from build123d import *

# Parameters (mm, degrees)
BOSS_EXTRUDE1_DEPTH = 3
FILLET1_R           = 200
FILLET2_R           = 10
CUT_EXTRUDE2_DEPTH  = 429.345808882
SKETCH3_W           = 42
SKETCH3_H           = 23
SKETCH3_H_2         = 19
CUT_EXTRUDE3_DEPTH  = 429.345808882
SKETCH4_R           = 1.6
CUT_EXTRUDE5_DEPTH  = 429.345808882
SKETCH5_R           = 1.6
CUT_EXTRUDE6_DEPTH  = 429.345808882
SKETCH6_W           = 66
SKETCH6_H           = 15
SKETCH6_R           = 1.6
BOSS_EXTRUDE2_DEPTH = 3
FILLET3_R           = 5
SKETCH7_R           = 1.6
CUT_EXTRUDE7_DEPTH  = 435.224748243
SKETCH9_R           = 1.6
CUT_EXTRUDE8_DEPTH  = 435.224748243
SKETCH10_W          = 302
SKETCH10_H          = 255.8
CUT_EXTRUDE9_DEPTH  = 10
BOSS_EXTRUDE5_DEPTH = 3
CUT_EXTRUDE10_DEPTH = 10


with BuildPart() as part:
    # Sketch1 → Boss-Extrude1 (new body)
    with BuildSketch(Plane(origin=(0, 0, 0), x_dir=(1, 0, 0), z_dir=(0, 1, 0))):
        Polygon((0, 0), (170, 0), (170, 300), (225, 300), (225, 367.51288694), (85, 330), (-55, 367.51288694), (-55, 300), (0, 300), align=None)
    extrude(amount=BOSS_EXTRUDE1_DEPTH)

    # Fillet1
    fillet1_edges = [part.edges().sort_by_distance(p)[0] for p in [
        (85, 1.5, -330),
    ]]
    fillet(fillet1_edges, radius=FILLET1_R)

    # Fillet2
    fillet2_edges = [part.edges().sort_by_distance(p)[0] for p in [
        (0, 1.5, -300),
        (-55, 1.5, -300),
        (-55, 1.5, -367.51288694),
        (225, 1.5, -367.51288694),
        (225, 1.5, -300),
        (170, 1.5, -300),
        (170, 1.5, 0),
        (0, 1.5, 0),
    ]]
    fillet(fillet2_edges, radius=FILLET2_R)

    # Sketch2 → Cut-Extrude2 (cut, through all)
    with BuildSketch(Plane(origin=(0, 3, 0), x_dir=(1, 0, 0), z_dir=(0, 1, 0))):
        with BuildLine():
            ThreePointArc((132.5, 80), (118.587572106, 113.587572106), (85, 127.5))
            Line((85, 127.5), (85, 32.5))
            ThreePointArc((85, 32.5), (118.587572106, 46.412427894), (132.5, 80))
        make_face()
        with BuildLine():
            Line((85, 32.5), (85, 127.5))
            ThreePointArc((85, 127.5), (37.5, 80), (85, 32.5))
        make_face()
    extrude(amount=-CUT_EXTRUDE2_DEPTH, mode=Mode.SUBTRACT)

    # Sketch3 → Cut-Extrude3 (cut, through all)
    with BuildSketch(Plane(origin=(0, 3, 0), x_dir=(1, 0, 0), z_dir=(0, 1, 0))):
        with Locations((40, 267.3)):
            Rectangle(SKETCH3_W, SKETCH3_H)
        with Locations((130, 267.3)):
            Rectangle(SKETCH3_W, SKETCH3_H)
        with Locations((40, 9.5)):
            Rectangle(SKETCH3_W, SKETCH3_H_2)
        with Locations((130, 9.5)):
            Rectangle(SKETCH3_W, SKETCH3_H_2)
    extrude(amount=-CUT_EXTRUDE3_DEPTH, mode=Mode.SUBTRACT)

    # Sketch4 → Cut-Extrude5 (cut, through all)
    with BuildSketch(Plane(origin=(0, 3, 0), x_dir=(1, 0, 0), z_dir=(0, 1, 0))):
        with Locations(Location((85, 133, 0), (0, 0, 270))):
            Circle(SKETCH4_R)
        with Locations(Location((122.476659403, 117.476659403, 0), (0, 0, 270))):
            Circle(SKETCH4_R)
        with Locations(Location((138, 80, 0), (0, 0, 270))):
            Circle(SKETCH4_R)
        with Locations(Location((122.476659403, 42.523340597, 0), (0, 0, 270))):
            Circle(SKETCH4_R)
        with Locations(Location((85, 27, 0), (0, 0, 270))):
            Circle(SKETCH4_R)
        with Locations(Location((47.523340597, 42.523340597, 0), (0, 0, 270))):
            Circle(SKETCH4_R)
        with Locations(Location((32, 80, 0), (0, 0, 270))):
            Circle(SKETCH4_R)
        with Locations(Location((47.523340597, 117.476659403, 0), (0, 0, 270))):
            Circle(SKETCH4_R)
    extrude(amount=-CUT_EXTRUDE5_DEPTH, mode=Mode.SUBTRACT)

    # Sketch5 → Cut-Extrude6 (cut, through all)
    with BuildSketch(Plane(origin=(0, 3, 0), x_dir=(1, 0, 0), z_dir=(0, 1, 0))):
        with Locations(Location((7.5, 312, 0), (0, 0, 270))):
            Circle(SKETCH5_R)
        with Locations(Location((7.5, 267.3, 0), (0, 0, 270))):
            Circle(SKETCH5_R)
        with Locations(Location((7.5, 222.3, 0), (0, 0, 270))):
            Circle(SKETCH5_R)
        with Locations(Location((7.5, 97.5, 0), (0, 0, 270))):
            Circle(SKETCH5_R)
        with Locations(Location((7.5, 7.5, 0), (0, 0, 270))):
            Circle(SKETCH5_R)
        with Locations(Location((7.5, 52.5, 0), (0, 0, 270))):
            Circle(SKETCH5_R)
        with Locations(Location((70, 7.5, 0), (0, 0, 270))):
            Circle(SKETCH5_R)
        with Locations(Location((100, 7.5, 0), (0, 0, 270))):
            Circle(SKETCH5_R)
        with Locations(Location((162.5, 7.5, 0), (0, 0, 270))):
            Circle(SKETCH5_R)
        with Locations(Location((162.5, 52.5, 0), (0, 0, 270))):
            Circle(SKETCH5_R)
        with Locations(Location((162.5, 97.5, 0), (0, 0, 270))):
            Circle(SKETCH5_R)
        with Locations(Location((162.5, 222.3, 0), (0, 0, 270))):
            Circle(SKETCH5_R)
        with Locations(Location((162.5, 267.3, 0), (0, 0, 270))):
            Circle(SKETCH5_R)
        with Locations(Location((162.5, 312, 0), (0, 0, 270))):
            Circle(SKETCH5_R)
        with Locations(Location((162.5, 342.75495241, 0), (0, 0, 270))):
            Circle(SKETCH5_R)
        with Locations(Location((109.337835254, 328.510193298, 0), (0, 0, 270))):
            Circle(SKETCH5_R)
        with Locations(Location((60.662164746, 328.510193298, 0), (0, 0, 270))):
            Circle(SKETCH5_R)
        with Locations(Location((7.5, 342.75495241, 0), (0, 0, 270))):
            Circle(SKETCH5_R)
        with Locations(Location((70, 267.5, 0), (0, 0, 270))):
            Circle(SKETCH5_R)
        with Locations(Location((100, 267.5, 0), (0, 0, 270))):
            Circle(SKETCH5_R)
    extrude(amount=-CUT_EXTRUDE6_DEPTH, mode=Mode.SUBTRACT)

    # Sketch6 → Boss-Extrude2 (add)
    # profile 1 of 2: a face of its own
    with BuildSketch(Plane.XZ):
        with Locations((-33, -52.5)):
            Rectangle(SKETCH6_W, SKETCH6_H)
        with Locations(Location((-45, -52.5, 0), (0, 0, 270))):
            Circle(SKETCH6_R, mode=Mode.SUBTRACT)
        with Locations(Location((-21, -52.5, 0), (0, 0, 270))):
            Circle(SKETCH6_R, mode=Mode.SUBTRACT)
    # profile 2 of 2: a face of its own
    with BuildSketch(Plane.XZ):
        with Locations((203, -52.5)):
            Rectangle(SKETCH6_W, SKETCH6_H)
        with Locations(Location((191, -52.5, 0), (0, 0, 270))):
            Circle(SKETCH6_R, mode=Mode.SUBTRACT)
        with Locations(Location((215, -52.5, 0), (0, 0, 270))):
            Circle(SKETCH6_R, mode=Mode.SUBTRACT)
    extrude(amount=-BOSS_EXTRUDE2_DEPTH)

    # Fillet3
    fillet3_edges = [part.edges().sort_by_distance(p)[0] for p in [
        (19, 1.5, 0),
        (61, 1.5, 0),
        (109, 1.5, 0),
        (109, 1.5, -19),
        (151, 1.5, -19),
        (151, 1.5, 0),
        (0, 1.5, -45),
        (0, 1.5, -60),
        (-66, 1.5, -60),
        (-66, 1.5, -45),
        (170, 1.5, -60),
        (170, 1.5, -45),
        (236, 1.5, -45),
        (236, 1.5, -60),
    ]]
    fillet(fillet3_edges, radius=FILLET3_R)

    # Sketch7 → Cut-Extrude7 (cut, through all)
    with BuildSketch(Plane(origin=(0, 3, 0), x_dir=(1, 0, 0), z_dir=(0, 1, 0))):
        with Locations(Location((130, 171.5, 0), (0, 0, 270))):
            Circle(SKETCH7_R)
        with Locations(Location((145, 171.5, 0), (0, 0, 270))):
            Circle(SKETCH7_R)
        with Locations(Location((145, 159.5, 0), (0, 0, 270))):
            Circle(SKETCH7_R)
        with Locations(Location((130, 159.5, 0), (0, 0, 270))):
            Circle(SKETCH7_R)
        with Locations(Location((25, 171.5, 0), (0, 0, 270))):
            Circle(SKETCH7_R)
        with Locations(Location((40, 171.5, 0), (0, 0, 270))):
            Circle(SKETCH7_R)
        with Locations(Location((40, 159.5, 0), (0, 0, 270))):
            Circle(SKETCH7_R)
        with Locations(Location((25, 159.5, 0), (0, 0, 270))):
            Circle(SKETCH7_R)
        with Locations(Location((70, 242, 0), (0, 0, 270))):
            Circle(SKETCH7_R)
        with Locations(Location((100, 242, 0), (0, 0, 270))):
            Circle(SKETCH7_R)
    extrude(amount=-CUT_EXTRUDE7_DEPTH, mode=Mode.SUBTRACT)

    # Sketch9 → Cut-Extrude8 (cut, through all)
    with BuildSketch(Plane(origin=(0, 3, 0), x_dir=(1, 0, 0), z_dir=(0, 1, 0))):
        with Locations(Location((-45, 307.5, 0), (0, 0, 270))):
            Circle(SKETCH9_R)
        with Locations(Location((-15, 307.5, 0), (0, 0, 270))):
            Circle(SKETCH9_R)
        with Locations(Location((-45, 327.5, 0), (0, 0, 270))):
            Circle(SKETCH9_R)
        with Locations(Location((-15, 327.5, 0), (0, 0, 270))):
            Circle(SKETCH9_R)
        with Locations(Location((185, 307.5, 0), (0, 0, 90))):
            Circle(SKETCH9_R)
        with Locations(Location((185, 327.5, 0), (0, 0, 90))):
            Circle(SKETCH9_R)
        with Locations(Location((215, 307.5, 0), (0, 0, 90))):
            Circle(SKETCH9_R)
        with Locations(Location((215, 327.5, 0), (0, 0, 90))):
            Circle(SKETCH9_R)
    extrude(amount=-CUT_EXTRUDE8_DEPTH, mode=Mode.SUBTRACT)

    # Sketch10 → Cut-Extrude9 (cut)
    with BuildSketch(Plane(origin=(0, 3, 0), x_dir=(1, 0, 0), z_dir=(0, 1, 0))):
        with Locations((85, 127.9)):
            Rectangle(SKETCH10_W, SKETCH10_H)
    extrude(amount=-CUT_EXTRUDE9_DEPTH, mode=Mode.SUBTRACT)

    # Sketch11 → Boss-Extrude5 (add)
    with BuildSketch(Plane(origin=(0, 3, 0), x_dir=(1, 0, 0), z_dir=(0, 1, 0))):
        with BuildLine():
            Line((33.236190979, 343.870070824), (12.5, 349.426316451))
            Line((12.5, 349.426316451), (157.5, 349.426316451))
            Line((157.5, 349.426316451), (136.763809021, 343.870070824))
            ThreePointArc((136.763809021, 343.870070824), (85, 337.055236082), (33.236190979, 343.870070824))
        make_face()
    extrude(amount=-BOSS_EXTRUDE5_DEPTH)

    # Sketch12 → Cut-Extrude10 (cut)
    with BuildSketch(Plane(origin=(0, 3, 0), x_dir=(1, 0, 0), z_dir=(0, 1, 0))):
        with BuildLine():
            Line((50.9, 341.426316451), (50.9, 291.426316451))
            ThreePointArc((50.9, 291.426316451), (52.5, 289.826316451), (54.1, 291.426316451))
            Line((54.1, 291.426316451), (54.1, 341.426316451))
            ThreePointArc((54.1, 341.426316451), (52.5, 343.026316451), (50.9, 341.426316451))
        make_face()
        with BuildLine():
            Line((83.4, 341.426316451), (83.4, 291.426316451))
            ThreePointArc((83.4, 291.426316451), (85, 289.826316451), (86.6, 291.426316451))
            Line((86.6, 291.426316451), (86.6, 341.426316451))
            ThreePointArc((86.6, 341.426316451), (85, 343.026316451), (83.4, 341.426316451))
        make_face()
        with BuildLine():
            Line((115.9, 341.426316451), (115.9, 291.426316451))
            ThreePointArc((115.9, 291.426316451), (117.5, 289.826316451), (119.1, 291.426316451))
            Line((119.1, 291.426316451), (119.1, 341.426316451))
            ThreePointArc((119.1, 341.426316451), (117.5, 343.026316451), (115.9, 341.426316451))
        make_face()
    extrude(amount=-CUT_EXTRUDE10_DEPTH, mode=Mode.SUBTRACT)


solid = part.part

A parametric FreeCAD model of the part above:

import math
import FreeCAD as App
import Part
import Sketcher
Q = App.Units.Quantity


def edges_at(feature, points):
    """Names of the edges that pass closest to the given points."""
    edges = feature.Shape.Edges
    near = lambda p: min(range(len(edges)), key=lambda i: edges[i].distToShape(Part.Vertex(*p))[0])
    return sorted({f"Edge{near(p) + 1}" for p in points})


def add_polygon(sketch, points):
    """Adds a closed chain of lines whose ends are joined by coincident constraints."""
    first, n = sketch.GeometryCount, len(points)
    for a, b in zip(points, points[1:] + points[:1]):
        sketch.addGeometry(Part.LineSegment(App.Vector(*a, 0), App.Vector(*b, 0)), False)
    for i in range(n):
        sketch.addConstraint(Sketcher.Constraint("Coincident", first + i, 2, first + (i + 1) % n, 1))

doc = App.newDocument("Part")
body = doc.addObject("PartDesign::Body", "Body")

sketch1 = doc.addObject("Sketcher::SketchObject", "Sketch")
body.addObject(sketch1)
sketch1.AttachmentSupport = (doc.XZ_Plane, [""])
sketch1.MapMode = "FlatFace"
add_polygon(sketch1, [(0, 0), (170, 0), (170, -300), (225, -300), (225, -368), (85, -330), (-55, -368), (-55, -300), (0, -300)])
sketch1.addConstraint([
    Sketcher.Constraint("Horizontal", 0),
    Sketcher.Constraint("Vertical", 1),
    Sketcher.Constraint("Horizontal", 2),
    Sketcher.Constraint("Vertical", 3),
    Sketcher.Constraint("Vertical", 6),
    Sketcher.Constraint("Horizontal", 7),
    Sketcher.Constraint("Vertical", 8),
    Sketcher.Constraint("Coincident", 8, 2, -1, 1),
    Sketcher.Constraint("Horizontal", 3, 2, 5, 2),
    Sketcher.Constraint("Horizontal", 2, 2, 6, 2),
    Sketcher.Constraint("Equal", 2, 7),
    Sketcher.Constraint("Equal", 4, 5),
    Sketcher.Constraint("DistanceX", 0, 1, 0, 2, 170.0),
    Sketcher.Constraint("DistanceX", 2, 1, 2, 2, 55.0),
    Sketcher.Constraint("DistanceY", 1, 2, 1, 1, 300.0),
    Sketcher.Constraint("Angle", 4, Q("165 deg")),
    Sketcher.Constraint("DistanceY", 4, 2, -1, 1, 330.0),
])
pad1 = doc.addObject("PartDesign::Pad", "Pad")
body.addObject(pad1)
pad1.Profile = sketch1
pad1.Length = 3
pad1.Reversed = True
doc.recompute()

fillet = doc.addObject("PartDesign::Fillet", "Fillet")
body.addObject(fillet)
fillet.Base = (pad1, edges_at(pad1, [(85, 1.5, -330)]))
fillet.Radius = 200
doc.recompute()

fillet2 = doc.addObject("PartDesign::Fillet", "Fillet001")
body.addObject(fillet2)
fillet2.Base = (fillet, edges_at(fillet, [
    (0, 1.5, -300),
    (-55, 1.5, -300),
    (-55, 1.5, -367.513),
    (225, 1.5, -367.513),
    (225, 1.5, -300),
    (170, 1.5, -300),
    (170, 1.5, 0),
    (0, 1.5, 0),
]))
fillet2.Radius = 10

sketch2 = doc.addObject("Sketcher::SketchObject", "Sketch001")
body.addObject(sketch2)
sketch2.AttachmentSupport = (doc.XZ_Plane, [""])
sketch2.MapMode = "FlatFace"
sketch2.AttachmentOffset = App.Placement(App.Vector(0, 0, -3), App.Rotation())
sketch2.addGeometry([
    Part.ArcOfCircle(Part.Circle(App.Vector(85, -80, 0), App.Vector(0, 0, 1), 48), math.radians(-90), math.radians(0)),
    Part.ArcOfCircle(Part.Circle(App.Vector(85, -80, 0), App.Vector(0, 0, 1), 48), math.radians(90), math.radians(270)),
    Part.ArcOfCircle(Part.Circle(App.Vector(85, -80, 0), App.Vector(0, 0, 1), 48), math.radians(0), math.radians(90)),
], False)
sketch2.addConstraint([
    Sketcher.Constraint("Tangent", 0, 1, 1, 2),
    Sketcher.Constraint("Tangent", 1, 1, 2, 2),
    Sketcher.Constraint("Tangent", 2, 1, 0, 2),
    Sketcher.Constraint("Horizontal", 1, 3, 2, 1),
    Sketcher.Constraint("Vertical", 2, 3, 0, 1),
    Sketcher.Constraint("Vertical", 0, 1, 1, 1),
    Sketcher.Constraint("Radius", 0, 47.5),
    Sketcher.Constraint("DistanceX", -1, 1, 0, 3, 85.0),
    Sketcher.Constraint("DistanceY", 0, 3, -1, 1, 80.0),
])
pocket1 = doc.addObject("PartDesign::Pocket", "Pocket")
body.addObject(pocket1)
pocket1.Profile = sketch2
pocket1.Type = "ThroughAll"
pocket1.Reversed = True

sketch3 = doc.addObject("Sketcher::SketchObject", "Sketch002")
body.addObject(sketch3)
sketch3.AttachmentSupport = (doc.XZ_Plane, [""])
sketch3.MapMode = "FlatFace"
sketch3.AttachmentOffset = App.Placement(App.Vector(0, 0, -3), App.Rotation())
add_polygon(sketch3, [(19, -279), (19, -256), (61, -256), (61, -279)])
add_polygon(sketch3, [(109, -279), (109, -256), (151, -256), (151, -279)])
add_polygon(sketch3, [(19, -19), (19, 0), (61, 0), (61, -19)])
add_polygon(sketch3, [(109, -19), (109, 0), (151, 0), (151, -19)])
sketch3.addConstraint([
    Sketcher.Constraint("Vertical", 0),
    Sketcher.Constraint("Horizontal", 1),
    Sketcher.Constraint("Vertical", 2),
    Sketcher.Constraint("Horizontal", 3),
    Sketcher.Constraint("Vertical", 4),
    Sketcher.Constraint("Horizontal", 5),
    Sketcher.Constraint("Vertical", 6),
    Sketcher.Constraint("Horizontal", 7),
    Sketcher.Constraint("Vertical", 8),
    Sketcher.Constraint("Horizontal", 9),
    Sketcher.Constraint("Vertical", 10),
    Sketcher.Constraint("Horizontal", 11),
    Sketcher.Constraint("Vertical", 12),
    Sketcher.Constraint("Horizontal", 13),
    Sketcher.Constraint("Vertical", 14),
    Sketcher.Constraint("Horizontal", 15),
    Sketcher.Constraint("PointOnObject", 8, 2, -1),
    Sketcher.Constraint("PointOnObject", 12, 2, -1),
    Sketcher.Constraint("Horizontal", 1, 2, 4, 2),
    Sketcher.Constraint("Horizontal", 3, 2, 6, 2),
    Sketcher.Constraint("Horizontal", 11, 2, 14, 2),
    Sketcher.Constraint("Vertical", 3, 2, 8, 2),
    Sketcher.Constraint("Vertical", 2, 2, 9, 2),
    Sketcher.Constraint("Vertical", 7, 2, 12, 2),
    Sketcher.Constraint("Vertical", 6, 2, 13, 2),
    Sketcher.Constraint("Equal", 3, 5),
    Sketcher.Constraint("DistanceX", 1, 1, 1, 2, 42.0),
    Sketcher.Constraint("DistanceY", 0, 1, 0, 2, 23.0),
    Sketcher.Constraint("DistanceY", 8, 1, 8, 2, 19.0),
    Sketcher.Constraint("DistanceX", -1, 1, 0, 2, 19.0),
    Sketcher.Constraint("DistanceX", -1, 1, 4, 2, 109.0),
    Sketcher.Constraint("DistanceY", 0, 2, -1, 1, 255.8),
])
pocket2 = doc.addObject("PartDesign::Pocket", "Pocket001")
body.addObject(pocket2)
pocket2.Profile = sketch3
pocket2.Type = "ThroughAll"
pocket2.Reversed = True

sketch4 = doc.addObject("Sketcher::SketchObject", "Sketch003")
body.addObject(sketch4)
sketch4.AttachmentSupport = (doc.XZ_Plane, [""])
sketch4.MapMode = "FlatFace"
sketch4.AttachmentOffset = App.Placement(App.Vector(0, 0, -3), App.Rotation())
sketch4.addGeometry([
    Part.Circle(App.Vector(85, -133, 0), App.Vector(0, 0, 1), 1.6),
    Part.Circle(App.Vector(122.5, -117.5, 0), App.Vector(0, 0, 1), 1.6),
    Part.Circle(App.Vector(138, -80, 0), App.Vector(0, 0, 1), 1.6),
    Part.Circle(App.Vector(122.5, -42.5, 0), App.Vector(0, 0, 1), 1.6),
    Part.Circle(App.Vector(85, -27, 0), App.Vector(0, 0, 1), 1.6),
    Part.Circle(App.Vector(47.5, -42.5, 0), App.Vector(0, 0, 1), 1.6),
    Part.Circle(App.Vector(32, -80, 0), App.Vector(0, 0, 1), 1.6),
    Part.Circle(App.Vector(47.5, -117.5, 0), App.Vector(0, 0, 1), 1.6),
], False)
sketch4.addConstraint([
    Sketcher.Constraint("Equal", 0, 1),
    Sketcher.Constraint("Equal", 1, 2),
    Sketcher.Constraint("Equal", 2, 3),
    Sketcher.Constraint("Equal", 3, 4),
    Sketcher.Constraint("Equal", 4, 5),
    Sketcher.Constraint("Equal", 5, 6),
    Sketcher.Constraint("Equal", 6, 7),
    Sketcher.Constraint("Horizontal", 3, 3, 5, 3),
    Sketcher.Constraint("Horizontal", 2, 3, 6, 3),
    Sketcher.Constraint("Horizontal", 1, 3, 7, 3),
    Sketcher.Constraint("Vertical", 1, 3, 3, 3),
    Sketcher.Constraint("Vertical", 0, 3, 4, 3),
    Sketcher.Constraint("Vertical", 5, 3, 7, 3),
    Sketcher.Constraint("Diameter", 0, 3.2),
    Sketcher.Constraint("DistanceX", -1, 1, 0, 3, 85.0),
    Sketcher.Constraint("DistanceY", 0, 3, -1, 1, 133.0),
    Sketcher.Constraint("DistanceX", -1, 1, 2, 3, 138.0),
    Sketcher.Constraint("DistanceY", 2, 3, -1, 1, 80.0),
    Sketcher.Constraint("DistanceY", 4, 3, -1, 1, 27.0),
    Sketcher.Constraint("DistanceX", -1, 1, 6, 3, 32.0),
    Sketcher.Constraint("DistanceX", -1, 1, 1, 3, 122.476659),
    Sketcher.Constraint("DistanceY", 1, 3, -1, 1, 117.476659),
    Sketcher.Constraint("DistanceY", 3, 3, -1, 1, 42.523341),
    Sketcher.Constraint("DistanceX", -1, 1, 5, 3, 47.523341),
])
pocket3 = doc.addObject("PartDesign::Pocket", "Pocket002")
body.addObject(pocket3)
pocket3.Profile = sketch4
pocket3.Type = "ThroughAll"
pocket3.Reversed = True

sketch5 = doc.addObject("Sketcher::SketchObject", "Sketch004")
body.addObject(sketch5)
sketch5.AttachmentSupport = (doc.XZ_Plane, [""])
sketch5.MapMode = "FlatFace"
sketch5.AttachmentOffset = App.Placement(App.Vector(0, 0, -3), App.Rotation())
sketch5.addGeometry([
    Part.Circle(App.Vector(7.5, -312, 0), App.Vector(0, 0, 1), 1.6),
    Part.Circle(App.Vector(7.5, -267.3, 0), App.Vector(0, 0, 1), 1.6),
    Part.Circle(App.Vector(7.5, -222.3, 0), App.Vector(0, 0, 1), 1.6),
    Part.Circle(App.Vector(7.5, -97.5, 0), App.Vector(0, 0, 1), 1.6),
    Part.Circle(App.Vector(7.5, -7.5, 0), App.Vector(0, 0, 1), 1.6),
    Part.Circle(App.Vector(7.5, -52.5, 0), App.Vector(0, 0, 1), 1.6),
    Part.Circle(App.Vector(70, -7.5, 0), App.Vector(0, 0, 1), 1.6),
    Part.Circle(App.Vector(100, -7.5, 0), App.Vector(0, 0, 1), 1.6),
    Part.Circle(App.Vector(162.5, -7.5, 0), App.Vector(0, 0, 1), 1.6),
    Part.Circle(App.Vector(162.5, -52.5, 0), App.Vector(0, 0, 1), 1.6),
    Part.Circle(App.Vector(162.5, -97.5, 0), App.Vector(0, 0, 1), 1.6),
    Part.Circle(App.Vector(162.5, -222.3, 0), App.Vector(0, 0, 1), 1.6),
    Part.Circle(App.Vector(162.5, -267.3, 0), App.Vector(0, 0, 1), 1.6),
    Part.Circle(App.Vector(162.5, -312, 0), App.Vector(0, 0, 1), 1.6),
    Part.Circle(App.Vector(162.5, -342.8, 0), App.Vector(0, 0, 1), 1.6),
    Part.Circle(App.Vector(109.3, -328.5, 0), App.Vector(0, 0, 1), 1.6),
    Part.Circle(App.Vector(60.7, -328.5, 0), App.Vector(0, 0, 1), 1.6),
    Part.Circle(App.Vector(7.5, -342.8, 0), App.Vector(0, 0, 1), 1.6),
    Part.Circle(App.Vector(70, -267.5, 0), App.Vector(0, 0, 1), 1.6),
    Part.Circle(App.Vector(100, -267.5, 0), App.Vector(0, 0, 1), 1.6),
], False)
sketch5.addConstraint([
    Sketcher.Constraint("Equal", 0, 1),
    Sketcher.Constraint("Equal", 1, 2),
    Sketcher.Constraint("Equal", 2, 3),
    Sketcher.Constraint("Equal", 3, 4),
    Sketcher.Constraint("Equal", 4, 5),
    Sketcher.Constraint("Equal", 5, 6),
    Sketcher.Constraint("Equal", 6, 7),
    Sketcher.Constraint("Equal", 7, 8),
    Sketcher.Constraint("Equal", 8, 9),
    Sketcher.Constraint("Equal", 9, 10),
    Sketcher.Constraint("Equal", 10, 11),
    Sketcher.Constraint("Equal", 11, 12),
    Sketcher.Constraint("Equal", 12, 13),
    Sketcher.Constraint("Equal", 13, 14),
    Sketcher.Constraint("Equal", 14, 15),
    Sketcher.Constraint("Equal", 15, 16),
    Sketcher.Constraint("Equal", 16, 17),
    Sketcher.Constraint("Equal", 17, 18),
    Sketcher.Constraint("Equal", 18, 19),
    Sketcher.Constraint("Horizontal", 4, 3, 6, 3),
    Sketcher.Constraint("Horizontal", 6, 3, 7, 3),
    Sketcher.Constraint("Horizontal", 7, 3, 8, 3),
    Sketcher.Constraint("Horizontal", 5, 3, 9, 3),
    Sketcher.Constraint("Horizontal", 3, 3, 10, 3),
    Sketcher.Constraint("Horizontal", 2, 3, 11, 3),
    Sketcher.Constraint("Horizontal", 1, 3, 12, 3),
    Sketcher.Constraint("Horizontal", 0, 3, 13, 3),
    Sketcher.Constraint("Horizontal", 15, 3, 16, 3),
    Sketcher.Constraint("Horizontal", 14, 3, 17, 3),
    Sketcher.Constraint("Horizontal", 18, 3, 19, 3),
    Sketcher.Constraint("Vertical", 0, 3, 1, 3),
    Sketcher.Constraint("Vertical", 1, 3, 2, 3),
    Sketcher.Constraint("Vertical", 2, 3, 3, 3),
    Sketcher.Constraint("Vertical", 3, 3, 4, 3),
    Sketcher.Constraint("Vertical", 4, 3, 5, 3),
    Sketcher.Constraint("Vertical", 8, 3, 9, 3),
    Sketcher.Constraint("Vertical", 9, 3, 10, 3),
    Sketcher.Constraint("Vertical", 10, 3, 11, 3),
    Sketcher.Constraint("Vertical", 11, 3, 12, 3),
    Sketcher.Constraint("Vertical", 12, 3, 13, 3),
    Sketcher.Constraint("Vertical", 13, 3, 14, 3),
    Sketcher.Constraint("Vertical", 5, 3, 17, 3),
    Sketcher.Constraint("Vertical", 6, 3, 18, 3),
    Sketcher.Constraint("Vertical", 7, 3, 19, 3),
    Sketcher.Constraint("Diameter", 0, 3.2),
    Sketcher.Constraint("DistanceY", 0, 3, -1, 1, 312.0),
    Sketcher.Constraint("DistanceX", -1, 1, 6, 3, 70.0),
    Sketcher.Constraint("DistanceX", -1, 1, 7, 3, 100.0),
    Sketcher.Constraint("DistanceY", 1, 3, 2, 3, 45.0),
    Sketcher.Constraint("DistanceY", 3, 3, 4, 3, 90.0),
    Sketcher.Constraint("DistanceY", 3, 3, 5, 3, 45.0),
    Sketcher.Constraint("DistanceX", 4, 3, 8, 3, 155.0),
    Sketcher.Constraint("DistanceX", -1, 1, 0, 3, 7.5),
    Sketcher.Constraint("DistanceY", 1, 3, -1, 1, 267.3),
    Sketcher.Constraint("DistanceY", 3, 3, -1, 1, 97.5),
    Sketcher.Constraint("DistanceY", 18, 3, -1, 1, 267.5),
    Sketcher.Constraint("DistanceY", 14, 3, 15, 3, 14.244759),
    Sketcher.Constraint("DistanceX", 16, 3, 15, 3, 48.675671),
    Sketcher.Constraint("DistanceY", 14, 3, -1, 1, 342.754952),
    Sketcher.Constraint("DistanceX", -1, 1, 15, 3, 109.337835),
])
pocket4 = doc.addObject("PartDesign::Pocket", "Pocket003")
body.addObject(pocket4)
pocket4.Profile = sketch5
pocket4.Type = "ThroughAll"
pocket4.Reversed = True

sketch6 = doc.addObject("Sketcher::SketchObject", "Sketch005")
body.addObject(sketch6)
sketch6.AttachmentSupport = (doc.XZ_Plane, [""])
sketch6.MapMode = "FlatFace"
add_polygon(sketch6, [(-66, -45), (-66, -60), (0, -60), (0, -45)])
sketch6.addGeometry(Part.Circle(App.Vector(-45, -52.5, 0), App.Vector(0, 0, 1), 1.6), False)
sketch6.addGeometry(Part.Circle(App.Vector(-21, -52.5, 0), App.Vector(0, 0, 1), 1.6), False)
add_polygon(sketch6, [(170, -45), (170, -60), (236, -60), (236, -45)])
sketch6.addGeometry(Part.Circle(App.Vector(191, -52.5, 0), App.Vector(0, 0, 1), 1.6), False)
sketch6.addGeometry(Part.Circle(App.Vector(215, -52.5, 0), App.Vector(0, 0, 1), 1.6), False)
sketch6.addConstraint([
    Sketcher.Constraint("Vertical", 0),
    Sketcher.Constraint("Horizontal", 1),
    Sketcher.Constraint("Vertical", 2),
    Sketcher.Constraint("Horizontal", 3),
    Sketcher.Constraint("Vertical", 6),
    Sketcher.Constraint("Horizontal", 7),
    Sketcher.Constraint("Vertical", 8),
    Sketcher.Constraint("Horizontal", 9),
    Sketcher.Constraint("Equal", 4, 5),
    Sketcher.Constraint("Equal", 5, 10),
    Sketcher.Constraint("Equal", 10, 11),
    Sketcher.Constraint("PointOnObject", 1, 2, -2),
    Sketcher.Constraint("Horizontal", 4, 3, 5, 3),
    Sketcher.Constraint("Horizontal", 5, 3, 10, 3),
    Sketcher.Constraint("Horizontal", 10, 3, 11, 3),
    Sketcher.Constraint("Horizontal", 1, 2, 6, 2),
    Sketcher.Constraint("Horizontal", 3, 2, 8, 2),
    Sketcher.Constraint("Equal", 3, 7),
    Sketcher.Constraint("Diameter", 4, 3.2),
    Sketcher.Constraint("DistanceX", 1, 1, 1, 2, 66.0),
    Sketcher.Constraint("DistanceY", 0, 2, 0, 1, 15.0),
    Sketcher.Constraint("DistanceX", 4, 3, -1, 1, 45.0),
    Sketcher.Constraint("DistanceX", 5, 3, -1, 1, 21.0),
    Sketcher.Constraint("DistanceX", -1, 1, 10, 3, 191.0),
    Sketcher.Constraint("DistanceX", -1, 1, 11, 3, 215.0),
    Sketcher.Constraint("DistanceY", 0, 2, -1, 1, 60.0),
    Sketcher.Constraint("DistanceX", -1, 1, 6, 2, 170.0),
    Sketcher.Constraint("DistanceY", 4, 3, -1, 1, 52.5),
])
pad2 = doc.addObject("PartDesign::Pad", "Pad001")
body.addObject(pad2)
pad2.Profile = sketch6
pad2.Length = 3
pad2.Reversed = True
doc.recompute()

fillet3 = doc.addObject("PartDesign::Fillet", "Fillet002")
body.addObject(fillet3)
fillet3.Base = (pad2, edges_at(pad2, [
    (19, 1.5, 0),
    (61, 1.5, 0),
    (109, 1.5, 0),
    (109, 1.5, -19),
    (151, 1.5, -19),
    (151, 1.5, 0),
    (0, 1.5, -45),
    (0, 1.5, -60),
    (-66, 1.5, -60),
    (-66, 1.5, -45),
    (170, 1.5, -60),
    (170, 1.5, -45),
    (236, 1.5, -45),
    (236, 1.5, -60),
]))
fillet3.Radius = 5

sketch7 = doc.addObject("Sketcher::SketchObject", "Sketch006")
body.addObject(sketch7)
sketch7.AttachmentSupport = (doc.XZ_Plane, [""])
sketch7.MapMode = "FlatFace"
sketch7.AttachmentOffset = App.Placement(App.Vector(0, 0, -3), App.Rotation())
sketch7.addGeometry([
    Part.Circle(App.Vector(130, -171.5, 0), App.Vector(0, 0, 1), 1.6),
    Part.Circle(App.Vector(145, -171.5, 0), App.Vector(0, 0, 1), 1.6),
    Part.Circle(App.Vector(145, -159.5, 0), App.Vector(0, 0, 1), 1.6),
    Part.Circle(App.Vector(130, -159.5, 0), App.Vector(0, 0, 1), 1.6),
    Part.Circle(App.Vector(25, -171.5, 0), App.Vector(0, 0, 1), 1.6),
    Part.Circle(App.Vector(40, -171.5, 0), App.Vector(0, 0, 1), 1.6),
    Part.Circle(App.Vector(40, -159.5, 0), App.Vector(0, 0, 1), 1.6),
    Part.Circle(App.Vector(25, -159.5, 0), App.Vector(0, 0, 1), 1.6),
    Part.Circle(App.Vector(70, -242, 0), App.Vector(0, 0, 1), 1.6),
    Part.Circle(App.Vector(100, -242, 0), App.Vector(0, 0, 1), 1.6),
], False)
sketch7.addConstraint([
    Sketcher.Constraint("Equal", 0, 1),
    Sketcher.Constraint("Equal", 1, 2),
    Sketcher.Constraint("Equal", 2, 3),
    Sketcher.Constraint("Equal", 3, 4),
    Sketcher.Constraint("Equal", 4, 5),
    Sketcher.Constraint("Equal", 5, 6),
    Sketcher.Constraint("Equal", 6, 7),
    Sketcher.Constraint("Equal", 7, 8),
    Sketcher.Constraint("Equal", 8, 9),
    Sketcher.Constraint("Horizontal", 0, 3, 1, 3),
    Sketcher.Constraint("Horizontal", 2, 3, 3, 3),
    Sketcher.Constraint("Horizontal", 1, 3, 4, 3),
    Sketcher.Constraint("Horizontal", 4, 3, 5, 3),
    Sketcher.Constraint("Horizontal", 3, 3, 6, 3),
    Sketcher.Constraint("Horizontal", 6, 3, 7, 3),
    Sketcher.Constraint("Horizontal", 8, 3, 9, 3),
    Sketcher.Constraint("Vertical", 1, 3, 2, 3),
    Sketcher.Constraint("Vertical", 0, 3, 3, 3),
    Sketcher.Constraint("Vertical", 5, 3, 6, 3),
    Sketcher.Constraint("Vertical", 4, 3, 7, 3),
    Sketcher.Constraint("Diameter", 0, 3.2),
    Sketcher.Constraint("DistanceX", -1, 1, 0, 3, 130.0),
    Sketcher.Constraint("DistanceX", -1, 1, 1, 3, 145.0),
    Sketcher.Constraint("DistanceX", -1, 1, 4, 3, 25.0),
    Sketcher.Constraint("DistanceX", -1, 1, 5, 3, 40.0),
    Sketcher.Constraint("DistanceX", -1, 1, 8, 3, 70.0),
    Sketcher.Constraint("DistanceY", 8, 3, -1, 1, 242.0),
    Sketcher.Constraint("DistanceX", -1, 1, 9, 3, 100.0),
    Sketcher.Constraint("DistanceY", 1, 3, 2, 3, 12.0),
    Sketcher.Constraint("DistanceY", 0, 3, -1, 1, 171.5),
])
pocket5 = doc.addObject("PartDesign::Pocket", "Pocket004")
body.addObject(pocket5)
pocket5.Profile = sketch7
pocket5.Type = "ThroughAll"
pocket5.Reversed = True

sketch8 = doc.addObject("Sketcher::SketchObject", "Sketch007")
body.addObject(sketch8)
sketch8.AttachmentSupport = (doc.XZ_Plane, [""])
sketch8.MapMode = "FlatFace"
sketch8.AttachmentOffset = App.Placement(App.Vector(0, 0, -3), App.Rotation())
sketch8.addGeometry([
    Part.Circle(App.Vector(-45, -307.5, 0), App.Vector(0, 0, 1), 1.6),
    Part.Circle(App.Vector(-15, -307.5, 0), App.Vector(0, 0, 1), 1.6),
    Part.Circle(App.Vector(-45, -327.5, 0), App.Vector(0, 0, 1), 1.6),
    Part.Circle(App.Vector(-15, -327.5, 0), App.Vector(0, 0, 1), 1.6),
    Part.Circle(App.Vector(185, -307.5, 0), App.Vector(0, 0, 1), 1.6),
    Part.Circle(App.Vector(185, -327.5, 0), App.Vector(0, 0, 1), 1.6),
    Part.Circle(App.Vector(215, -307.5, 0), App.Vector(0, 0, 1), 1.6),
    Part.Circle(App.Vector(215, -327.5, 0), App.Vector(0, 0, 1), 1.6),
], False)
sketch8.addConstraint([
    Sketcher.Constraint("Equal", 0, 1),
    Sketcher.Constraint("Equal", 1, 2),
    Sketcher.Constraint("Equal", 2, 3),
    Sketcher.Constraint("Equal", 3, 4),
    Sketcher.Constraint("Equal", 4, 5),
    Sketcher.Constraint("Equal", 5, 6),
    Sketcher.Constraint("Equal", 6, 7),
    Sketcher.Constraint("Horizontal", 0, 3, 1, 3),
    Sketcher.Constraint("Horizontal", 2, 3, 3, 3),
    Sketcher.Constraint("Horizontal", 1, 3, 4, 3),
    Sketcher.Constraint("Horizontal", 3, 3, 5, 3),
    Sketcher.Constraint("Horizontal", 4, 3, 6, 3),
    Sketcher.Constraint("Horizontal", 5, 3, 7, 3),
    Sketcher.Constraint("Vertical", 0, 3, 2, 3),
    Sketcher.Constraint("Vertical", 1, 3, 3, 3),
    Sketcher.Constraint("Vertical", 4, 3, 5, 3),
    Sketcher.Constraint("Vertical", 6, 3, 7, 3),
    Sketcher.Constraint("Diameter", 0, 3.2),
    Sketcher.Constraint("DistanceX", 0, 3, -1, 1, 45.0),
    Sketcher.Constraint("DistanceX", 1, 3, -1, 1, 15.0),
    Sketcher.Constraint("DistanceX", -1, 1, 4, 3, 185.0),
    Sketcher.Constraint("DistanceX", -1, 1, 6, 3, 215.0),
    Sketcher.Constraint("DistanceY", 2, 3, 0, 3, 20.0),
    Sketcher.Constraint("DistanceY", 0, 3, -1, 1, 307.5),
])
pocket6 = doc.addObject("PartDesign::Pocket", "Pocket005")
body.addObject(pocket6)
pocket6.Profile = sketch8
pocket6.Type = "ThroughAll"
pocket6.Reversed = True

sketch9 = doc.addObject("Sketcher::SketchObject", "Sketch008")
body.addObject(sketch9)
sketch9.AttachmentSupport = (doc.XZ_Plane, [""])
sketch9.MapMode = "FlatFace"
sketch9.AttachmentOffset = App.Placement(App.Vector(0, 0, -3), App.Rotation())
add_polygon(sketch9, [(-66, -256), (-66, 0), (236, 0), (236, -256)])
sketch9.addConstraint([
    Sketcher.Constraint("Vertical", 0),
    Sketcher.Constraint("Horizontal", 1),
    Sketcher.Constraint("Vertical", 2),
    Sketcher.Constraint("Horizontal", 3),
    Sketcher.Constraint("PointOnObject", 0, 2, -1),
    Sketcher.Constraint("DistanceX", 1, 1, 1, 2, 302.0),
    Sketcher.Constraint("DistanceY", 0, 1, 0, 2, 255.8),
    Sketcher.Constraint("DistanceX", 0, 2, -1, 1, 66.0),
])
pocket7 = doc.addObject("PartDesign::Pocket", "Pocket006")
body.addObject(pocket7)
pocket7.Profile = sketch9
pocket7.Length = 10
pocket7.Reversed = True

sketch10 = doc.addObject("Sketcher::SketchObject", "Sketch009")
body.addObject(sketch10)
sketch10.AttachmentSupport = (doc.XZ_Plane, [""])
sketch10.MapMode = "FlatFace"
sketch10.AttachmentOffset = App.Placement(App.Vector(0, 0, -3), App.Rotation())
sketch10.addGeometry([
    Part.LineSegment(App.Vector(12, -349, 0), App.Vector(33, -344, 0)),
    Part.ArcOfCircle(Part.Circle(App.Vector(85, -537, 0), App.Vector(0, 0, 1), 200), math.radians(75), math.radians(105)),
    Part.LineSegment(App.Vector(137, -344, 0), App.Vector(158, -349, 0)),
    Part.LineSegment(App.Vector(158, -349, 0), App.Vector(12, -349, 0)),
], False)
sketch10.addConstraint([
    Sketcher.Constraint("Tangent", 0, 2, 1, 2),
    Sketcher.Constraint("Tangent", 1, 1, 2, 1),
    Sketcher.Constraint("Coincident", 2, 2, 3, 1),
    Sketcher.Constraint("Coincident", 3, 2, 0, 1),
    Sketcher.Constraint("Horizontal", 3),
    Sketcher.Constraint("Horizontal", 0, 2, 1, 1),
    Sketcher.Constraint("Radius", 1, 200.0),
    Sketcher.Constraint("DistanceX", 3, 2, 3, 1, 145.0),
    Sketcher.Constraint("Angle", 0, Q("15 deg")),
    Sketcher.Constraint("DistanceX", -1, 1, 1, 3, 85.0),
    Sketcher.Constraint("DistanceY", 0, 2, -1, 1, 343.870071),
])
pad3 = doc.addObject("PartDesign::Pad", "Pad002")
body.addObject(pad3)
pad3.Profile = sketch10
pad3.Length = 3

sketch11 = doc.addObject("Sketcher::SketchObject", "Sketch010")
body.addObject(sketch11)
sketch11.AttachmentSupport = (doc.XZ_Plane, [""])
sketch11.MapMode = "FlatFace"
sketch11.AttachmentOffset = App.Placement(App.Vector(0, 0, -3), App.Rotation())
sketch11.addGeometry([
    Part.LineSegment(App.Vector(50.9, -341.4, 0), App.Vector(50.9, -291.4, 0)),
    Part.ArcOfCircle(Part.Circle(App.Vector(52.5, -291.4, 0), App.Vector(0, 0, 1), 1.6), math.radians(0), math.radians(180)),
    Part.LineSegment(App.Vector(54.1, -291.4, 0), App.Vector(54.1, -341.4, 0)),
    Part.ArcOfCircle(Part.Circle(App.Vector(52.5, -341.4, 0), App.Vector(0, 0, 1), 1.6), math.radians(180), math.radians(360)),
    Part.LineSegment(App.Vector(83.4, -341.4, 0), App.Vector(83.4, -291.4, 0)),
    Part.ArcOfCircle(Part.Circle(App.Vector(85, -291.4, 0), App.Vector(0, 0, 1), 1.6), math.radians(0), math.radians(180)),
    Part.LineSegment(App.Vector(86.6, -291.4, 0), App.Vector(86.6, -341.4, 0)),
    Part.ArcOfCircle(Part.Circle(App.Vector(85, -341.4, 0), App.Vector(0, 0, 1), 1.6), math.radians(180), math.radians(360)),
    Part.LineSegment(App.Vector(115.9, -341.4, 0), App.Vector(115.9, -291.4, 0)),
    Part.ArcOfCircle(Part.Circle(App.Vector(117.5, -291.4, 0), App.Vector(0, 0, 1), 1.6), math.radians(0), math.radians(180)),
    Part.LineSegment(App.Vector(119.1, -291.4, 0), App.Vector(119.1, -341.4, 0)),
    Part.ArcOfCircle(Part.Circle(App.Vector(117.5, -341.4, 0), App.Vector(0, 0, 1), 1.6), math.radians(180), math.radians(360)),
], False)
sketch11.addConstraint([
    Sketcher.Constraint("Tangent", 0, 2, 1, 2),
    Sketcher.Constraint("Tangent", 1, 1, 2, 1),
    Sketcher.Constraint("Tangent", 2, 2, 3, 2),
    Sketcher.Constraint("Tangent", 3, 1, 0, 1),
    Sketcher.Constraint("Tangent", 4, 2, 5, 2),
    Sketcher.Constraint("Tangent", 5, 1, 6, 1),
    Sketcher.Constraint("Tangent", 6, 2, 7, 2),
    Sketcher.Constraint("Tangent", 7, 1, 4, 1),
    Sketcher.Constraint("Tangent", 8, 2, 9, 2),
    Sketcher.Constraint("Tangent", 9, 1, 10, 1),
    Sketcher.Constraint("Tangent", 10, 2, 11, 2),
    Sketcher.Constraint("Tangent", 11, 1, 8, 1),
    Sketcher.Constraint("Vertical", 0),
    Sketcher.Constraint("Vertical", 2),
    Sketcher.Constraint("Vertical", 4),
    Sketcher.Constraint("Vertical", 6),
    Sketcher.Constraint("Vertical", 8),
    Sketcher.Constraint("Vertical", 10),
    Sketcher.Constraint("Equal", 3, 5),
    Sketcher.Constraint("Equal", 7, 9),
    Sketcher.Constraint("Horizontal", 1, 3, 5, 3),
    Sketcher.Constraint("Horizontal", 3, 3, 7, 3),
    Sketcher.Constraint("Horizontal", 5, 3, 9, 3),
    Sketcher.Constraint("Horizontal", 7, 3, 11, 3),
    Sketcher.Constraint("Radius", 1, 1.6),
    Sketcher.Constraint("DistanceY", 0, 1, 0, 2, 50.0),
    Sketcher.Constraint("DistanceX", -1, 1, 5, 3, 85.0),
    Sketcher.Constraint("DistanceX", 1, 3, 9, 3, 65.0),
    Sketcher.Constraint("DistanceX", -1, 1, 1, 3, 52.5),
    Sketcher.Constraint("DistanceY", 1, 3, -1, 1, 291.426316),
])
pocket8 = doc.addObject("PartDesign::Pocket", "Pocket007")
body.addObject(pocket8)
pocket8.Profile = sketch11
pocket8.Length = 10
pocket8.Reversed = True

doc.recompute()
